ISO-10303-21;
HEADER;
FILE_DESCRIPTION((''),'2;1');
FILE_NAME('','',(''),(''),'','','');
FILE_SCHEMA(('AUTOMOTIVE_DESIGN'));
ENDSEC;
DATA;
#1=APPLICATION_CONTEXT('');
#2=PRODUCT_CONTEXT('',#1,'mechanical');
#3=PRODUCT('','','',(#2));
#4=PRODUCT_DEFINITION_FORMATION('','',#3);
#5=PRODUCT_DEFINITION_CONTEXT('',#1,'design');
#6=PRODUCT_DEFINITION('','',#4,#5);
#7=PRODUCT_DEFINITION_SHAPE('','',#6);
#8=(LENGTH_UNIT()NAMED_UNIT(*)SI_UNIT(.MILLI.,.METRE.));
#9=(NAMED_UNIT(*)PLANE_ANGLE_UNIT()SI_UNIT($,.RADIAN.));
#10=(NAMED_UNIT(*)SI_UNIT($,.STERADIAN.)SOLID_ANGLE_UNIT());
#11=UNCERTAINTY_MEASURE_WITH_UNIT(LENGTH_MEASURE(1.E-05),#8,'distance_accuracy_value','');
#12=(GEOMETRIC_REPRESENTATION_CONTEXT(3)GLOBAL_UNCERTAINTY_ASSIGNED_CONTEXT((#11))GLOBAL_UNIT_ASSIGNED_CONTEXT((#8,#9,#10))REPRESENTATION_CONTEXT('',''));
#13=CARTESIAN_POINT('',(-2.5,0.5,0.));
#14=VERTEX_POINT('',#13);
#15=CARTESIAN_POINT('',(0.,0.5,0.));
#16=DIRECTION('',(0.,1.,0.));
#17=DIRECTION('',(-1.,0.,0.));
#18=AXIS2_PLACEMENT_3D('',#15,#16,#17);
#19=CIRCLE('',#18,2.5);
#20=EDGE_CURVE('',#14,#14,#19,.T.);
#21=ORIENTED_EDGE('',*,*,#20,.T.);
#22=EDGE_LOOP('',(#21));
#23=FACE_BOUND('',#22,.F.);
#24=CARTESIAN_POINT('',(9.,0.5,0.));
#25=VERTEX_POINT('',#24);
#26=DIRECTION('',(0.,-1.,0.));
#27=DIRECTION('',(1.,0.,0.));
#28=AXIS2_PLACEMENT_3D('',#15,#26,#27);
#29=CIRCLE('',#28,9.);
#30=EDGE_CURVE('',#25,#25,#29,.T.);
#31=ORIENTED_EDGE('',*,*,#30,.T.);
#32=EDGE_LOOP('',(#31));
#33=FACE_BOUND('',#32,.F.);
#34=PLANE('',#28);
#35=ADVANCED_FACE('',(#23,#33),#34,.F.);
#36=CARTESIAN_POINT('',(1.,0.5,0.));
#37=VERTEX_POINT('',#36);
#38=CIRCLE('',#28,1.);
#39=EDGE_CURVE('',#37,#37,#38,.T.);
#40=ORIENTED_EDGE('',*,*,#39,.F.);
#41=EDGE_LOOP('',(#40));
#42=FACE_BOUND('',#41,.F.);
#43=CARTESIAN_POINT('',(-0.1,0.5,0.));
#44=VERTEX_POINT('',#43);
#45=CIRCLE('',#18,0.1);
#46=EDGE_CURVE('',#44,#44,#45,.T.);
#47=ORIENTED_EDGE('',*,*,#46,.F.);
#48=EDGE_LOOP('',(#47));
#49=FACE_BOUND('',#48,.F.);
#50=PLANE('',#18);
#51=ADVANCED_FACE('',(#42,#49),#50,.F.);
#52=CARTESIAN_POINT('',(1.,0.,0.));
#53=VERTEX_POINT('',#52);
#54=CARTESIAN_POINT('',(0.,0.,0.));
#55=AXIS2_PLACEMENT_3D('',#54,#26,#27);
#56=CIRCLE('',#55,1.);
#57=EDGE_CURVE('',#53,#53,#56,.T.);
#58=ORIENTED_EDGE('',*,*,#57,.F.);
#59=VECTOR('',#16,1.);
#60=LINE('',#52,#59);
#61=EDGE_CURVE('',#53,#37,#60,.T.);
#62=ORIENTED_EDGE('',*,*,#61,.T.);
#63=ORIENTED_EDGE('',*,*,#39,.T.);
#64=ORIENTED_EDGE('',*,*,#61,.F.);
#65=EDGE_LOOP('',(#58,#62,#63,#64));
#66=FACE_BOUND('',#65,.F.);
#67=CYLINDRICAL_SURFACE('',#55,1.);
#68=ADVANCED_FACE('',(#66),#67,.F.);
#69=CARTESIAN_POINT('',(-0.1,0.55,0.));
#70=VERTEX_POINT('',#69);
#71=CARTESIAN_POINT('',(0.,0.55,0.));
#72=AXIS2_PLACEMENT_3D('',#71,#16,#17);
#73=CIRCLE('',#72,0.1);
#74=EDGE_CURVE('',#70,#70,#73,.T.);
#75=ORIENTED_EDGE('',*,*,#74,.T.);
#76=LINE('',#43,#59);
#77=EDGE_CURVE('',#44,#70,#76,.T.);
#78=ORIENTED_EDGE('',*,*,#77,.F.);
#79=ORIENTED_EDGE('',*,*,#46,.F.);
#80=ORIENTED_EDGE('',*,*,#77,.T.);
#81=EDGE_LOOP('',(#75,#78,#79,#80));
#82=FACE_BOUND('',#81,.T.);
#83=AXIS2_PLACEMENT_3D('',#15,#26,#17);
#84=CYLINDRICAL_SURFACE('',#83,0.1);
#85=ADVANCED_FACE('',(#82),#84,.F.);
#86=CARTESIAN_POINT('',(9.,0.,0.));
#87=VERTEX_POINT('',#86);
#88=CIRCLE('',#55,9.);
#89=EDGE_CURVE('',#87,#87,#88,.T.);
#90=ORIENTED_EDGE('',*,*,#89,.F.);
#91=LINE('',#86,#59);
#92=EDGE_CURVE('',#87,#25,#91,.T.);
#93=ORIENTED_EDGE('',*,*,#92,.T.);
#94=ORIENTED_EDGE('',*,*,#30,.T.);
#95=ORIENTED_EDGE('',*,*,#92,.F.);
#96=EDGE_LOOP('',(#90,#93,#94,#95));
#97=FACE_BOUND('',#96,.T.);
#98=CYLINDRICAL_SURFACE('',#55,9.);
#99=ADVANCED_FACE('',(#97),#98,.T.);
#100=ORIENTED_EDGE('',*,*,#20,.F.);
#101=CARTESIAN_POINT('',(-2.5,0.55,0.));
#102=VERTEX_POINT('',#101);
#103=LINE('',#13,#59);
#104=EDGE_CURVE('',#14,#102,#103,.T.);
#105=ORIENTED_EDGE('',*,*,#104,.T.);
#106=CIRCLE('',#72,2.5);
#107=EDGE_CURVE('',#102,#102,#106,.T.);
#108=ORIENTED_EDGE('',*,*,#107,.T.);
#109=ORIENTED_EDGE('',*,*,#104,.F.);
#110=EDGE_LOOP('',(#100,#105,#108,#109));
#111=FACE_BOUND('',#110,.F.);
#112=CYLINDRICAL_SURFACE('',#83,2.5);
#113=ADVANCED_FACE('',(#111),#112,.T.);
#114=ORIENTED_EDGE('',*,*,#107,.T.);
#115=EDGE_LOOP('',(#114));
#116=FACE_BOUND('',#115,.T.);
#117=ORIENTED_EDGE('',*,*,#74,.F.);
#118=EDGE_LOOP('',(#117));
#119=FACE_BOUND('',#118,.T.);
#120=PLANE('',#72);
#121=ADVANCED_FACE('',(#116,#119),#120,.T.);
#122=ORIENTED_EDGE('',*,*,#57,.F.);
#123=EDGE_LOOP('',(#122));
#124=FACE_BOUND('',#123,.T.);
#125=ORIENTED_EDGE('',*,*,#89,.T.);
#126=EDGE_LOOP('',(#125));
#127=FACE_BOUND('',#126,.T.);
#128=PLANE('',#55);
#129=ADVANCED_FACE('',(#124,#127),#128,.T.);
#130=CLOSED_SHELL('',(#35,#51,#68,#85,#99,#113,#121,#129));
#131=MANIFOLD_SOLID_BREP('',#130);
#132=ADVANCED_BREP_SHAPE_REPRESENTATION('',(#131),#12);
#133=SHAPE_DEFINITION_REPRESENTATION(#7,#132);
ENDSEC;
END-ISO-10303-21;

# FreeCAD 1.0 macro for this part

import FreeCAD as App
import Part
import Sketcher

V = App.Vector

doc = App.newDocument("Part")
body = doc.addObject("PartDesign::Body", "Body")

# Sketch on XZ plane
sketch1 = body.newObject("Sketcher::SketchObject", "Sketch")
sketch1.AttachmentSupport = (doc.getObject("XZ_Plane"), [""])
sketch1.MapMode = "FlatFace"
sketch1.addGeometry([
    Part.Circle(V(0, 0, 0), V(0, 0, 1), 9),
    Part.Circle(V(0, 0, 0), V(0, 0, 1), 1),
], False)
sketch1.addConstraint([
    Sketcher.Constraint("Coincident", 0, 3, -1, 1),
    Sketcher.Constraint("Coincident", 1, 3, -1, 1),
    Sketcher.Constraint("Diameter", 0, 18.0),
    Sketcher.Constraint("Diameter", 1, 2.0),
])
pad1 = body.newObject("PartDesign::Pad", "Pad")
pad1.Profile = sketch1
pad1.Length = 0.5
pad1.Reversed = True

# Sketch on XZ plane
sketch2 = body.newObject("Sketcher::SketchObject", "Sketch001")
sketch2.AttachmentSupport = (doc.getObject("XZ_Plane"), [""])
sketch2.MapMode = "FlatFace"
sketch2.AttachmentOffset = App.Placement(V(0, 0, -0.5), App.Rotation())
sketch2.addGeometry([
    Part.Circle(V(0, 0, 0), V(0, 0, 1), 2.5),
    Part.Circle(V(0, 0, 0), V(0, 0, 1), 0.1),
], False)
sketch2.addConstraint([
    Sketcher.Constraint("Coincident", 0, 3, -1, 1),
    Sketcher.Constraint("Coincident", 1, 3, -1, 1),
    Sketcher.Constraint("Diameter", 0, 5.0),
    Sketcher.Constraint("Diameter", 1, 0.2),
])
pad2 = body.newObject("PartDesign::Pad", "Pad001")
pad2.Profile = sketch2
pad2.Length = 0.05
pad2.Reversed = True

doc.recompute()
